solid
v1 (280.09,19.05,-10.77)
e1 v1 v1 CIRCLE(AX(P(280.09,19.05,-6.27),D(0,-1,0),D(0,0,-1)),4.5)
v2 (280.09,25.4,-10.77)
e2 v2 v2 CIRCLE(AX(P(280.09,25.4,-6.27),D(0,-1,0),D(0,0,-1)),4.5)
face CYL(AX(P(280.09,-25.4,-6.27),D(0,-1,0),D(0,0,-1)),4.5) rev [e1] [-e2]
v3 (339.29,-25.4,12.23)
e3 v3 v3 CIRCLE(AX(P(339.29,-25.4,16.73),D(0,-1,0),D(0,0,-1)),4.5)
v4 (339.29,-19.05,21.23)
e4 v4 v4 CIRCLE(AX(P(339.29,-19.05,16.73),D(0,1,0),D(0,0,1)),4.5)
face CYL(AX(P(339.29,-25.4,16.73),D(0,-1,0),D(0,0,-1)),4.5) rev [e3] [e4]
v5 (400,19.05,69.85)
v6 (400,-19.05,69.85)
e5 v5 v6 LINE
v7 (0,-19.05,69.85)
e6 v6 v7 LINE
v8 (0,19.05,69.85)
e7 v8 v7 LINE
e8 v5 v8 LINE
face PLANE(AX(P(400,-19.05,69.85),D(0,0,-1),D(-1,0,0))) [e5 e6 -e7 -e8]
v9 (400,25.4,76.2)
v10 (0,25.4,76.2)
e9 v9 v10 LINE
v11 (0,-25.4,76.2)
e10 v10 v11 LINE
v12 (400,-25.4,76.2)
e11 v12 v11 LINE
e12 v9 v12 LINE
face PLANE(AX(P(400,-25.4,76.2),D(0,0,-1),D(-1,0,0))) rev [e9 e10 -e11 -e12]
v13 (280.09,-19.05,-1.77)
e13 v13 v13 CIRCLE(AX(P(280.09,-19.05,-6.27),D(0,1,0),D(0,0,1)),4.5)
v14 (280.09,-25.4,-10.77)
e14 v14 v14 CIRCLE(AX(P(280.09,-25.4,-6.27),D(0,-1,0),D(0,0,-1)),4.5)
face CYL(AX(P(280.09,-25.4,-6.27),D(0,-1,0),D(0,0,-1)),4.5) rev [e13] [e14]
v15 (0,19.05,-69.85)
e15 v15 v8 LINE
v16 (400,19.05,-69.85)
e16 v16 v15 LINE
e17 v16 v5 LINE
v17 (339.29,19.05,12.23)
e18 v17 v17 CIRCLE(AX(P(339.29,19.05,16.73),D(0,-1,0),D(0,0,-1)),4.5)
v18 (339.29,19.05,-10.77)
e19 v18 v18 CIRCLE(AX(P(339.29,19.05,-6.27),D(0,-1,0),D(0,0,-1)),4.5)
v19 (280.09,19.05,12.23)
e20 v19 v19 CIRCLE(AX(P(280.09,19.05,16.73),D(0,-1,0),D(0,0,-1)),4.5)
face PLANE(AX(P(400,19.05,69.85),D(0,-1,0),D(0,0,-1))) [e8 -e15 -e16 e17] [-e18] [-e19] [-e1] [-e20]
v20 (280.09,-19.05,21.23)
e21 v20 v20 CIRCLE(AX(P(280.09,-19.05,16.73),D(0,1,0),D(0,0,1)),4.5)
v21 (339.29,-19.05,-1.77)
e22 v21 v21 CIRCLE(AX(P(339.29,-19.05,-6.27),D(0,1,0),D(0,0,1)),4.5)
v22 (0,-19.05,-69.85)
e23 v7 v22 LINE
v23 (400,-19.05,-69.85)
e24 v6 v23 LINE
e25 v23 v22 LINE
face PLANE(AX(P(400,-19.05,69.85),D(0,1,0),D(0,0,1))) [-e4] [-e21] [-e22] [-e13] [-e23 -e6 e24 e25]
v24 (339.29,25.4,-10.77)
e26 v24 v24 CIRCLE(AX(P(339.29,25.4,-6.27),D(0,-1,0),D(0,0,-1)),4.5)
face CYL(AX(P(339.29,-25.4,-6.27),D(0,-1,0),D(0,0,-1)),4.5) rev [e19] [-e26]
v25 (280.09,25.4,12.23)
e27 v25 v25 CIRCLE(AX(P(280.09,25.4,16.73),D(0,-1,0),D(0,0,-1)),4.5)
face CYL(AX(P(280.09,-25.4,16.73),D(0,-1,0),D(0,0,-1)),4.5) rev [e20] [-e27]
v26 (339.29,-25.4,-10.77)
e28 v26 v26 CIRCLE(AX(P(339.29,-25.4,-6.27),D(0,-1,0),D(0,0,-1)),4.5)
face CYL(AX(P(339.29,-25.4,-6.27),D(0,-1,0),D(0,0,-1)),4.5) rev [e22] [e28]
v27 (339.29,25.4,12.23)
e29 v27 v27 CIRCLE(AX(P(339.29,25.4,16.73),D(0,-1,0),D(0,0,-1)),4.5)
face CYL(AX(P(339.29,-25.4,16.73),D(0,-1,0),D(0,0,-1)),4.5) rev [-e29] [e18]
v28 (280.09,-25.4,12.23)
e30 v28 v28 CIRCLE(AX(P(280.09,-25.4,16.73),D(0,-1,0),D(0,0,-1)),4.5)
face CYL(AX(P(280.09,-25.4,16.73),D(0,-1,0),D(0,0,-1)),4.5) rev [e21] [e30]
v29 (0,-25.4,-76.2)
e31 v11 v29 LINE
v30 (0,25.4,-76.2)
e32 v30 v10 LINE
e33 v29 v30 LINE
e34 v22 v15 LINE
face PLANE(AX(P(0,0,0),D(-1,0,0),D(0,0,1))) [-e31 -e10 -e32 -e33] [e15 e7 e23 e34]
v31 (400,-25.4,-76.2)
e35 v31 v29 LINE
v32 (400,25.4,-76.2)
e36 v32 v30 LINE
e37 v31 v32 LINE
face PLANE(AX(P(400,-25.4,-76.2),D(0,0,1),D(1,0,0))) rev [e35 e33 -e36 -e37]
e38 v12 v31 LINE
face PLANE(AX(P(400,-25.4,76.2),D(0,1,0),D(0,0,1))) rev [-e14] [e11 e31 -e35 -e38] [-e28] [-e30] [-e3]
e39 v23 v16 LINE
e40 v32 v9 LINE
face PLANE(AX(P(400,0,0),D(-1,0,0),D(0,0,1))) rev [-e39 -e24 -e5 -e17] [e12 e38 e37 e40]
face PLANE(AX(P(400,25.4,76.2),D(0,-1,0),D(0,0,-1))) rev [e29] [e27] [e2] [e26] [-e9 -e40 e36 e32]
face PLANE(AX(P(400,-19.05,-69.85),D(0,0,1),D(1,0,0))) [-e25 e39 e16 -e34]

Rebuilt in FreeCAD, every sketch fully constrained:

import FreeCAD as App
import Part
import Sketcher

V = App.Vector
Q = App.Units.Quantity


def add_polygon(sketch, points):
    """Adds a closed chain of lines whose ends are joined by coincident constraints."""
    first, n = sketch.GeometryCount, len(points)
    for a, b in zip(points, points[1:] + points[:1]):
        sketch.addGeometry(Part.LineSegment(App.Vector(*a, 0), App.Vector(*b, 0)), False)
    for i in range(n):
        sketch.addConstraint(Sketcher.Constraint("Coincident", first + i, 2, first + (i + 1) % n, 1))

doc = App.newDocument("Part")
params = doc.addObject("Spreadsheet::Sheet", "Params")
for row, (alias, value) in enumerate([
    ("sketch1_width", "2 in"),
    ("sketch1_height", "6 in"),
    ("sketch1_width2", "1.5 in"),
    ("sketch1_height2", "5.5 in"),
    ("pad1_length", "400 mm"),
    ("hole_diameter", "9 mm"),
], start=1):
    params.set(f"A{row}", alias)
    params.set(f"B{row}", "=" + value)
    params.setAlias(f"B{row}", alias)

body = doc.addObject("PartDesign::Body", "Body")

# Sketch on YZ plane
sketch1 = body.newObject("Sketcher::SketchObject", "Sketch")
sketch1.AttachmentSupport = (doc.getObject("YZ_Plane"), [""])
sketch1.MapMode = "FlatFace"
add_polygon(sketch1, [(25, 76), (-25, 76), (-25, -76), (25, -76)])  # lines 0-3
add_polygon(sketch1, [(-19, -70), (-19, 70), (19, 70), (19, -70)])  # lines 4-7
sketch1.addConstraint(Sketcher.Constraint("Horizontal", 0))
sketch1.addConstraint(Sketcher.Constraint("Vertical", 1))
sketch1.addConstraint(Sketcher.Constraint("Horizontal", 2))
sketch1.addConstraint(Sketcher.Constraint("Vertical", 3))
sketch1.addConstraint(Sketcher.Constraint("Vertical", 4))
sketch1.addConstraint(Sketcher.Constraint("Horizontal", 5))
sketch1.addConstraint(Sketcher.Constraint("Vertical", 6))
sketch1.addConstraint(Sketcher.Constraint("Horizontal", 7))
sketch1.addConstraint(Sketcher.Constraint("Symmetric", 0, 2, 2, 2, -1, 1))
sketch1.addConstraint(Sketcher.Constraint("Symmetric", 4, 2, 6, 2, -1, 1))
sketch1.addConstraint(Sketcher.Constraint("DistanceX", 0, 2, 0, 1, Q("2 in")))
sketch1.addConstraint(Sketcher.Constraint("DistanceY", 1, 2, 1, 1, Q("6 in")))
sketch1.addConstraint(Sketcher.Constraint("DistanceX", 5, 1, 5, 2, Q("1.5 in")))
sketch1.addConstraint(Sketcher.Constraint("DistanceY", 4, 1, 4, 2, Q("5.5 in")))
sketch1.setExpression("Constraints[18]", "Params.sketch1_width")
sketch1.setExpression("Constraints[19]", "Params.sketch1_height")
sketch1.setExpression("Constraints[20]", "Params.sketch1_width2")
sketch1.setExpression("Constraints[21]", "Params.sketch1_height2")
pad1 = body.newObject("PartDesign::Pad", "Pad")
pad1.Profile = sketch1
pad1.setExpression("Length", "Params.pad1_length")

# Sketch on XZ plane
sketch2 = body.newObject("Sketcher::SketchObject", "Sketch001")
sketch2.AttachmentSupport = (doc.getObject("XZ_Plane"), [""])
sketch2.MapMode = "FlatFace"
sketch2.AttachmentOffset = App.Placement(V(0, 0, 1 * 25.4), App.Rotation())
sketch2.addGeometry(Part.Circle(V(280.1, 16.7, 0), V(0, 0, 1), 4.5), False)
sketch2.addGeometry(Part.Circle(V(280.1, -6.3, 0), V(0, 0, 1), 4.5), False)
sketch2.addGeometry(Part.Circle(V(339.3, -6.3, 0), V(0, 0, 1), 4.5), False)
sketch2.addGeometry(Part.Circle(V(339.3, 16.7, 0), V(0, 0, 1), 4.5), False)
sketch2.addConstraint(Sketcher.Constraint("Equal", 0, 1))
sketch2.addConstraint(Sketcher.Constraint("Equal", 1, 2))
sketch2.addConstraint(Sketcher.Constraint("Equal", 2, 3))
sketch2.addConstraint(Sketcher.Constraint("Horizontal", 1, 3, 2, 3))
sketch2.addConstraint(Sketcher.Constraint("Horizontal", 0, 3, 3, 3))
sketch2.addConstraint(Sketcher.Constraint("Vertical", 0, 3, 1, 3))
sketch2.addConstraint(Sketcher.Constraint("Vertical", 2, 3, 3, 3))
sketch2.addConstraint(Sketcher.Constraint("Diameter", 0, Q("9 mm")))
sketch2.addConstraint(Sketcher.Constraint("DistanceX", -1, 1, 0, 3, Q("280.09 mm")))
sketch2.addConstraint(Sketcher.Constraint("DistanceY", -1, 1, 0, 3, Q("16.73 mm")))
sketch2.addConstraint(Sketcher.Constraint("DistanceY", 1, 3, -1, 1, Q("6.27 mm")))
sketch2.addConstraint(Sketcher.Constraint("DistanceX", -1, 1, 2, 3, Q("339.29 mm")))
doc.recompute()
hole = body.newObject("PartDesign::Hole", "Hole")
hole.Profile = sketch2
hole.ThreadType = "None"
hole.setExpression("Diameter", "Params.hole_diameter")
hole.DepthType = "ThroughAll"

doc.recompute()
